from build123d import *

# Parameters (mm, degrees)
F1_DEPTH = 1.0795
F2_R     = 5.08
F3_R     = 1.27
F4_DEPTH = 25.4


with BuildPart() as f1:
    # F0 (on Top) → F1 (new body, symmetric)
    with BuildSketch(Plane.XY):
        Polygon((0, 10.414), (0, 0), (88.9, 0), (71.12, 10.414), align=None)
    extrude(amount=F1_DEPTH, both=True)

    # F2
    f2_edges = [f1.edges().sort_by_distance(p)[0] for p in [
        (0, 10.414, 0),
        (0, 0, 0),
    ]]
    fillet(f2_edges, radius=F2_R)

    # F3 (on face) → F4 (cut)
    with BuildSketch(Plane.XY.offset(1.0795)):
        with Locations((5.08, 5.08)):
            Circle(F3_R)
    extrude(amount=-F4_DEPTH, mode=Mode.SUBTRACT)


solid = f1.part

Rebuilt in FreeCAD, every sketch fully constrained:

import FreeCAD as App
import Part
import Sketcher
from FreeCAD import Vector
Q = App.Units.Quantity


def edges_at(feature, points):
    """Names of the edges that pass closest to the given points."""
    edges = feature.Shape.Edges
    near = lambda p: min(range(len(edges)), key=lambda i: edges[i].distToShape(Part.Vertex(*p))[0])
    return sorted({f"Edge{near(p) + 1}" for p in points})

doc = App.newDocument("Part")
body = doc.addObject("PartDesign::Body", "Body")

# Sketch on XY plane
sketch1 = body.newObject("Sketcher::SketchObject", "Sketch")
sketch1.AttachmentSupport = (doc.getObject("XY_Plane"), [""])
sketch1.MapMode = "FlatFace"
sketch1.addGeometry(Part.LineSegment(Vector(0, 10, 0), Vector(0, 0, 0)), False)
sketch1.addGeometry(Part.LineSegment(Vector(0, 0, 0), Vector(89, 0, 0)), False)
sketch1.addGeometry(Part.LineSegment(Vector(89, 0, 0), Vector(71, 10, 0)), False)
sketch1.addGeometry(Part.LineSegment(Vector(71, 10, 0), Vector(0, 10, 0)), False)
sketch1.addConstraint(Sketcher.Constraint("Coincident", 0, 2, 1, 1))
sketch1.addConstraint(Sketcher.Constraint("Coincident", 1, 2, 2, 1))
sketch1.addConstraint(Sketcher.Constraint("Coincident", 2, 2, 3, 1))
sketch1.addConstraint(Sketcher.Constraint("Coincident", 3, 2, 0, 1))
sketch1.addConstraint(Sketcher.Constraint("Vertical", 0))
sketch1.addConstraint(Sketcher.Constraint("Horizontal", 1))
sketch1.addConstraint(Sketcher.Constraint("Horizontal", 3))
sketch1.addConstraint(Sketcher.Constraint("Coincident", 0, 2, -1, 1))
sketch1.addConstraint(Sketcher.Constraint("DistanceX", 1, 1, 1, 2, Q("3.5 in")))
sketch1.addConstraint(Sketcher.Constraint("DistanceX", 3, 2, 3, 1, Q("2.8 in")))
sketch1.addConstraint(Sketcher.Constraint("DistanceY", 0, 2, 0, 1, Q("0.41 in")))
pad1 = body.newObject("PartDesign::Pad", "Pad")
pad1.Profile = sketch1
pad1.Length = Q("0.085 in")
pad1.Midplane = True
doc.recompute()

fillet = body.newObject("PartDesign::Fillet", "Fillet")
fillet.Base = (pad1, edges_at(pad1, [(0, 10.414, 0), (0, 0, 0)]))
fillet.Radius = Q("0.2 in")

# Sketch on XY plane
sketch2 = body.newObject("Sketcher::SketchObject", "Sketch001")
sketch2.AttachmentSupport = (doc.getObject("XY_Plane"), [""])
sketch2.MapMode = "FlatFace"
sketch2.AttachmentOffset = App.Placement(Vector(0, 0, 0.0425 * 25.4), App.Rotation())
sketch2.addGeometry(Part.Circle(Vector(5.1, 5.1, 0), Vector(0, 0, 1), 1.3), False)
sketch2.addConstraint(Sketcher.Constraint("Diameter", 0, Q("0.1 in")))
sketch2.addConstraint(Sketcher.Constraint("DistanceX", -1, 1, 0, 3, Q("0.2 in")))
sketch2.addConstraint(Sketcher.Constraint("DistanceY", -1, 1, 0, 3, Q("0.2 in")))
pocket1 = body.newObject("PartDesign::Pocket", "Pocket")
pocket1.Profile = sketch2
pocket1.Length = Q("1 in")

doc.recompute()
